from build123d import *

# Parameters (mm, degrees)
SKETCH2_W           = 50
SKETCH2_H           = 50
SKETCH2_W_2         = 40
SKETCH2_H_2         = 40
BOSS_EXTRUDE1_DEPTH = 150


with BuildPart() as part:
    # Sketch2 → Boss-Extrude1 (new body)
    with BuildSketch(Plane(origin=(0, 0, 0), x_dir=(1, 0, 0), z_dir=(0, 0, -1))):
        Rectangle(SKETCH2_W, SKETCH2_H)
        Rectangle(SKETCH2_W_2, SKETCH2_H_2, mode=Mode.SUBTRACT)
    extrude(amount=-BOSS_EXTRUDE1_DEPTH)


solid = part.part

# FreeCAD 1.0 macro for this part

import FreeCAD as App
import Part
import Sketcher

V = App.Vector
Q = App.Units.Quantity


def add_polygon(sketch, points):
    """Adds a closed chain of lines whose ends are joined by coincident constraints."""
    first, n = sketch.GeometryCount, len(points)
    for a, b in zip(points, points[1:] + points[:1]):
        sketch.addGeometry(Part.LineSegment(App.Vector(*a, 0), App.Vector(*b, 0)), False)
    for i in range(n):
        sketch.addConstraint(Sketcher.Constraint("Coincident", first + i, 2, first + (i + 1) % n, 1))

doc = App.newDocument("Part")
body = doc.addObject("PartDesign::Body", "Body")

sketch1 = body.newObject("Sketcher::SketchObject", "Sketch")
sketch1.AttachmentSupport = (doc.getObject("XY_Plane"), [""])
sketch1.MapMode = "FlatFace"
add_polygon(sketch1, [(-25, -25), (-25, 25), (25, 25), (25, -25)])
add_polygon(sketch1, [(20, 20), (-20, 20), (-20, -20), (20, -20)])
sketch1.addConstraint([
    Sketcher.Constraint("Vertical", 0),
    Sketcher.Constraint("Horizontal", 1),
    Sketcher.Constraint("Vertical", 2),
    Sketcher.Constraint("Horizontal", 3),
    Sketcher.Constraint("Horizontal", 4),
    Sketcher.Constraint("Vertical", 5),
    Sketcher.Constraint("Horizontal", 6),
    Sketcher.Constraint("Vertical", 7),
    Sketcher.Constraint("Symmetric", 0, 2, 2, 2, -1, 1),
    Sketcher.Constraint("Symmetric", 4, 2, 6, 2, -1, 1),
    Sketcher.Constraint("Equal", 3, 0),
    Sketcher.Constraint("Equal", 6, 5),
    Sketcher.Constraint("DistanceX", 1, 1, 1, 2, Q("50 mm")),
    Sketcher.Constraint("DistanceX", 4, 2, 4, 1, Q("40 mm")),
])
pad1 = body.newObject("PartDesign::Pad", "Pad")
pad1.Profile = sketch1
pad1.Length = 150

doc.recompute()
